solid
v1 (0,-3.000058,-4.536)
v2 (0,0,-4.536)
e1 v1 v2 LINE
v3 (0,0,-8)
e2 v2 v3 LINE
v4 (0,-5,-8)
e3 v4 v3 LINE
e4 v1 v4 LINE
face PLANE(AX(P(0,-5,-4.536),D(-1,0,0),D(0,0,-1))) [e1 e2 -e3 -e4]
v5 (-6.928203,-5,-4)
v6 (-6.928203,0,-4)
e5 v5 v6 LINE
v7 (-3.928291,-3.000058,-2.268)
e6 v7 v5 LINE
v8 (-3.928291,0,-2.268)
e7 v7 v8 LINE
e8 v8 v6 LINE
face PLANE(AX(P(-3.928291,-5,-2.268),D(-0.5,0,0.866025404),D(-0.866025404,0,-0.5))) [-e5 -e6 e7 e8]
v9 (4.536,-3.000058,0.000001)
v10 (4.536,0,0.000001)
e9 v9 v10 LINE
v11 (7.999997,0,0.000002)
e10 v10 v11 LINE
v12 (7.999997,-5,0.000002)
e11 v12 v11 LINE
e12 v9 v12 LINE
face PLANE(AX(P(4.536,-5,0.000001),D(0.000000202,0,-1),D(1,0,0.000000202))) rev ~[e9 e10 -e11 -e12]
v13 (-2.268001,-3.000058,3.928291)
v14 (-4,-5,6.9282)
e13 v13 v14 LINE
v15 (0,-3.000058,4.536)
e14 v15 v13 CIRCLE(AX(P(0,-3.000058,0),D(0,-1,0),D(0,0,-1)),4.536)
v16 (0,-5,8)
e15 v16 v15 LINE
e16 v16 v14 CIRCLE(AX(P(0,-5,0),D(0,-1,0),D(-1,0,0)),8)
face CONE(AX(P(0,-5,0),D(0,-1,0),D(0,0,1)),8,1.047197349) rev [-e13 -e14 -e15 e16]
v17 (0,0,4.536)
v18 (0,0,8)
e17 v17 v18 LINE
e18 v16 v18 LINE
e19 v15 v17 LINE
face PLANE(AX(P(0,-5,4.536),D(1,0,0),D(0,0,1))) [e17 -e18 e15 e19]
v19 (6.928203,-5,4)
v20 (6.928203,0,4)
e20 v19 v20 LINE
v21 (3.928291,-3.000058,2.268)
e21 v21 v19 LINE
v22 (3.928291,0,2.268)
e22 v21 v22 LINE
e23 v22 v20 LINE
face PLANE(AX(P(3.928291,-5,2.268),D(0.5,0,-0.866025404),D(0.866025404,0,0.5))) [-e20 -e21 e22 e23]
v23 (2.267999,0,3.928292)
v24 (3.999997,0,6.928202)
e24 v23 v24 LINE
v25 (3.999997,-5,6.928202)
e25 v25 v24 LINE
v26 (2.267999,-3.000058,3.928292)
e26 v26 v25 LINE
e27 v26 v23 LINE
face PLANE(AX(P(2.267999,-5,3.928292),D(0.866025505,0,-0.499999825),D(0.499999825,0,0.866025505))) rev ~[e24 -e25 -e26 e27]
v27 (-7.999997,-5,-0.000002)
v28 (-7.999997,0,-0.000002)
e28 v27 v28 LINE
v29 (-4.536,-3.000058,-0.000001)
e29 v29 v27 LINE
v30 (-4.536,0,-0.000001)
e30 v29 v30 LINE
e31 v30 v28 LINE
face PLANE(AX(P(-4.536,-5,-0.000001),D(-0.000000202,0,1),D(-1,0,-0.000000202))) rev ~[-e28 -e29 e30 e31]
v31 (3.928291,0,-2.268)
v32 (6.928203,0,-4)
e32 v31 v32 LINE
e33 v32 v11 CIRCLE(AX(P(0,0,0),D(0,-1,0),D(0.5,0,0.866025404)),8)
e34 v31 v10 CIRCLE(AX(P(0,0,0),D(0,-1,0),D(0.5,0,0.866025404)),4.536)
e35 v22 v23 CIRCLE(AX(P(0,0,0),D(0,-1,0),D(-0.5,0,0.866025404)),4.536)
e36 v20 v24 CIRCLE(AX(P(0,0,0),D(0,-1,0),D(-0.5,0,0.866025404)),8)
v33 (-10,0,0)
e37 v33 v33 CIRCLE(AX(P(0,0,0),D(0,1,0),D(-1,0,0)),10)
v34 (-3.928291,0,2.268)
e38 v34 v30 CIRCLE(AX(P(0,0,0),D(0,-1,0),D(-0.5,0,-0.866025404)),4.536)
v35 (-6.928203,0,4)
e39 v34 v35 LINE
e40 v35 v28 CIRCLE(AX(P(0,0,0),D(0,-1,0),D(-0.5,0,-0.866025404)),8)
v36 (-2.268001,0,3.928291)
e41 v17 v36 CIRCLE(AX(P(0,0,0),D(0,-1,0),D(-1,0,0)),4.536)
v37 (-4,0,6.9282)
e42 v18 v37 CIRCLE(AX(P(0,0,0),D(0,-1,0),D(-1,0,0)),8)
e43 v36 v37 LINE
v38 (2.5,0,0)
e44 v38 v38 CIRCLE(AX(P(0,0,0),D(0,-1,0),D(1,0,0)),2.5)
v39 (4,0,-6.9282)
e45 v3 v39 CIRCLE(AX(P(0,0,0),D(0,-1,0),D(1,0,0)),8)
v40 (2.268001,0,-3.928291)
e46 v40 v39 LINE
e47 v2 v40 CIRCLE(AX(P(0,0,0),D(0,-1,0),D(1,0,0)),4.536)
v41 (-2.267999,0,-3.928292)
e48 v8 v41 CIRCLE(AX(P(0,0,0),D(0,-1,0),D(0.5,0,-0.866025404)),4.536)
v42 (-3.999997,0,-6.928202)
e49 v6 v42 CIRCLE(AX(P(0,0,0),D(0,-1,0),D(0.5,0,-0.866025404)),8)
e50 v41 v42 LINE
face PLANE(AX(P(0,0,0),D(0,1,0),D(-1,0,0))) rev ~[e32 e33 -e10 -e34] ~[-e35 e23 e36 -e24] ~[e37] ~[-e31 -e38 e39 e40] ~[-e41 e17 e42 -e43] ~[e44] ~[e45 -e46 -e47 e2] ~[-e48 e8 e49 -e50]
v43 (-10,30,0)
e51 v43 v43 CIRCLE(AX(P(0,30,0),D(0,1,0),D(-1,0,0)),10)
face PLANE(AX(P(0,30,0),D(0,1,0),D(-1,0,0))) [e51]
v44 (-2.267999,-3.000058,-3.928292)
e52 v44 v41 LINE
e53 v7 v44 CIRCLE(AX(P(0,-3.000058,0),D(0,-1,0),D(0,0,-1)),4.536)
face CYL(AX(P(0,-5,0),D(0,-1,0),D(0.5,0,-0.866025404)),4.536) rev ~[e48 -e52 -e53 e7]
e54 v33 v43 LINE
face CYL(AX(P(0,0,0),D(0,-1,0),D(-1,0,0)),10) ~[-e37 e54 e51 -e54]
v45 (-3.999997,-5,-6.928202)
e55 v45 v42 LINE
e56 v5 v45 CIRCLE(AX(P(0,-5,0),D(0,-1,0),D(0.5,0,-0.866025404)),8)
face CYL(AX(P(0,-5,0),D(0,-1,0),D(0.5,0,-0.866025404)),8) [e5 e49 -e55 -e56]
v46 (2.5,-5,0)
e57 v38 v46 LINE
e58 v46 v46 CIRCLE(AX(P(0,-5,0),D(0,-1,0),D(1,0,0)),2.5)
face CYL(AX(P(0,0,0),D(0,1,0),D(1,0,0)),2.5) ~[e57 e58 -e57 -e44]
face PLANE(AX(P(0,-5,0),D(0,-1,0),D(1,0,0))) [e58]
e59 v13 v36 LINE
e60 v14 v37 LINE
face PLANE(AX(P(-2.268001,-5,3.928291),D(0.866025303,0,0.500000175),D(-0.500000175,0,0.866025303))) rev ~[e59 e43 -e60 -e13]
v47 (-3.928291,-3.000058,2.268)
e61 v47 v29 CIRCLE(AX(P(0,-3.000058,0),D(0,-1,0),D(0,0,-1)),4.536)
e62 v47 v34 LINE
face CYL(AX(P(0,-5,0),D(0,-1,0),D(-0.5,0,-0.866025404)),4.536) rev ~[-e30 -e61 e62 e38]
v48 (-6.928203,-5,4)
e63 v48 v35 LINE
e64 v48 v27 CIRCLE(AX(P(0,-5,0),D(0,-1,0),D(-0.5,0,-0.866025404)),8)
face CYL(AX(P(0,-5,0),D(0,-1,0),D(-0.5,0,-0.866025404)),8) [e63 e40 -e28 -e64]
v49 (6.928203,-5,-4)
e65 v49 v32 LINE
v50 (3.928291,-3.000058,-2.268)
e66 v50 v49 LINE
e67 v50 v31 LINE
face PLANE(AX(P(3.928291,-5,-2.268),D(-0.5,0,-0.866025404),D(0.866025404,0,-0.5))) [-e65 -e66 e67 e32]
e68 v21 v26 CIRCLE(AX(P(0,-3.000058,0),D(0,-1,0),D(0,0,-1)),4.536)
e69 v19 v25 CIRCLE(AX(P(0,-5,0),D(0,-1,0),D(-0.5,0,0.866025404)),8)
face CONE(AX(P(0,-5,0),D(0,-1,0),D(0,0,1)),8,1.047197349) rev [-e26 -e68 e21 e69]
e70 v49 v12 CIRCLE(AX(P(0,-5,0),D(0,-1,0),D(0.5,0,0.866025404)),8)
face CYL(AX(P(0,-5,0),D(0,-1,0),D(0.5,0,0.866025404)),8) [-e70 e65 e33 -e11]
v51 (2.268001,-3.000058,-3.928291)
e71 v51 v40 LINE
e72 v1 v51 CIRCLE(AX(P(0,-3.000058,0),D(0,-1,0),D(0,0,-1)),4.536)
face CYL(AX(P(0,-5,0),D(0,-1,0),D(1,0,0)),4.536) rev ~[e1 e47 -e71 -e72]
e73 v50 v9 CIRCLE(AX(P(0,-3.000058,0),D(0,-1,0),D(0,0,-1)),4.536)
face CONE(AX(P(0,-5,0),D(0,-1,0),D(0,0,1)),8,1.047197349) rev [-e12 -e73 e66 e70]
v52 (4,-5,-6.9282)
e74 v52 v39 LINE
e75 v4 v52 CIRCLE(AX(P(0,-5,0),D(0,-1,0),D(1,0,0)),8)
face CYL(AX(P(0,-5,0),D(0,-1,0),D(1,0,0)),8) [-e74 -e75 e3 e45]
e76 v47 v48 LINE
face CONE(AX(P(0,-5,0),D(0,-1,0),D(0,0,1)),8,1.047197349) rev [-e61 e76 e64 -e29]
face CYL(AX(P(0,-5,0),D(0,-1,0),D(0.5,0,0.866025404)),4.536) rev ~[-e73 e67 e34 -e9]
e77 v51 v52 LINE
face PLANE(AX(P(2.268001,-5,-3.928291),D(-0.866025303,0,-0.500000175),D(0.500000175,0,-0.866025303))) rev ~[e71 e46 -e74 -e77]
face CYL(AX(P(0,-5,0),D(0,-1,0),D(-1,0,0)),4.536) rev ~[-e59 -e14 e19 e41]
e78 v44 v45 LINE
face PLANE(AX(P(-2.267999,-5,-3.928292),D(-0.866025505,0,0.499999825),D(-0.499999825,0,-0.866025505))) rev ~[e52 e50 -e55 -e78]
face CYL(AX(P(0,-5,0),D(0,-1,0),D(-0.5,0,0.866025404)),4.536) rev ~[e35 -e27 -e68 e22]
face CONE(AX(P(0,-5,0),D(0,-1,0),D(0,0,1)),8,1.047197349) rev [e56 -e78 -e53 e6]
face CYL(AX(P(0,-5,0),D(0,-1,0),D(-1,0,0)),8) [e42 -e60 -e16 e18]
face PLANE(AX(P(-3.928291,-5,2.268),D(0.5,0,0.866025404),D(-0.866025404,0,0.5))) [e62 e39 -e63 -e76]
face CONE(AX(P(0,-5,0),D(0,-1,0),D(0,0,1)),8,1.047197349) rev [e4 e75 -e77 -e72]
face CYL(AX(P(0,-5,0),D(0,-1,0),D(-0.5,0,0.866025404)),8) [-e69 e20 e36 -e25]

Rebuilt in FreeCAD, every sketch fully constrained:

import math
import FreeCAD as App
import Part
import Sketcher

V = App.Vector
Q = App.Units.Quantity


def add_polygon(sketch, points):
    """Adds a closed chain of lines whose ends are joined by coincident constraints."""
    first, n = sketch.GeometryCount, len(points)
    for a, b in zip(points, points[1:] + points[:1]):
        sketch.addGeometry(Part.LineSegment(App.Vector(*a, 0), App.Vector(*b, 0)), False)
    for i in range(n):
        sketch.addConstraint(Sketcher.Constraint("Coincident", first + i, 2, first + (i + 1) % n, 1))

doc = App.newDocument("Part")
params = doc.addObject("Spreadsheet::Sheet", "Params")
for row, (alias, value) in enumerate([
    ("sketch1_diameter", "20 mm"),
    ("pad1_length", "30 mm"),
    ("sketch2_diameter", "5 mm"),
    ("pad2_length", "5 mm"),
    ("sketch3_radius", "8 mm"),
    ("pad3_length", "5 mm"),
    ("sketch4_length", "4 mm"),
    ("sketch4_width", "2 mm"),
    ("groove_angle", "360 deg"),
], start=1):
    params.set(f"A{row}", alias)
    params.set(f"B{row}", "=" + value)
    params.setAlias(f"B{row}", alias)

body = doc.addObject("PartDesign::Body", "Body")

# Sketch on XZ plane
sketch1 = body.newObject("Sketcher::SketchObject", "Sketch")
sketch1.AttachmentSupport = (doc.getObject("XZ_Plane"), [""])
sketch1.MapMode = "FlatFace"
sketch1.addGeometry(Part.Circle(V(0, 0, 0), V(0, 0, 1), 10), False)
sketch1.addConstraint([
    Sketcher.Constraint("Coincident", 0, 3, -1, 1),
    Sketcher.Constraint("Diameter", 0, 20.0),
])
sketch1.setExpression("Constraints[1]", "Params.sketch1_diameter")
pad1 = body.newObject("PartDesign::Pad", "Pad")
pad1.Profile = sketch1
pad1.setExpression("Length", "Params.pad1_length")
pad1.Reversed = True

# Sketch on XZ plane
sketch2 = body.newObject("Sketcher::SketchObject", "Sketch001")
sketch2.AttachmentSupport = (doc.getObject("XZ_Plane"), [""])
sketch2.MapMode = "FlatFace"
sketch2.addGeometry(Part.Circle(V(0, 0, 0), V(0, 0, 1), 2.5), False)
sketch2.addConstraint([
    Sketcher.Constraint("Coincident", 0, 3, -1, 1),
    Sketcher.Constraint("Diameter", 0, 5.0),
])
sketch2.setExpression("Constraints[1]", "Params.sketch2_diameter")
pad2 = body.newObject("PartDesign::Pad", "Pad001")
pad2.Profile = sketch2
pad2.setExpression("Length", "Params.pad2_length")

# Sketch on XZ plane
sketch3 = body.newObject("Sketcher::SketchObject", "Sketch002")
sketch3.AttachmentSupport = (doc.getObject("XZ_Plane"), [""])
sketch3.MapMode = "FlatFace"
sketch3.AttachmentOffset = App.Placement(V(0, 0, 5), App.Rotation())
sketch3.addGeometry([
    Part.LineSegment(V(4, -6.9282, 0), V(2.268001, -3.928291, 0)),
    Part.ArcOfCircle(Part.Circle(V(0, 0, 0), V(0, 0, 1), 4.536), math.radians(-90), math.radians(-59.999988)),
    Part.LineSegment(V(0, -4.536, 0), V(0, -8, 0)),
    Part.ArcOfCircle(Part.Circle(V(0, 0, 0), V(0, 0, 1), 8), math.radians(-90), math.radians(-59.999988)),
], False)
sketch3.addConstraint([
    Sketcher.Constraint("Coincident", 0, 2, 1, 2),
    Sketcher.Constraint("Coincident", 1, 1, 2, 1),
    Sketcher.Constraint("Coincident", 2, 2, 3, 1),
    Sketcher.Constraint("Coincident", 3, 2, 0, 1),
    Sketcher.Constraint("Vertical", 2),
    Sketcher.Constraint("Coincident", 1, 3, -1, 1),
    Sketcher.Constraint("Coincident", 3, 3, -1, 1),
    Sketcher.Constraint("PointOnObject", 1, 1, -2),
    Sketcher.Constraint("Radius", 3, 8.0),
    Sketcher.Constraint("Radius", 1, 4.536),
    Sketcher.Constraint("Angle", 0, Q("120 deg")),
    Sketcher.Constraint("DistanceX", -1, 1, 3, 2, 4.0),
])
sketch3.setExpression("Constraints[8]", "Params.sketch3_radius")
pad3 = body.newObject("PartDesign::Pad", "Pad002")
pad3.Profile = sketch3
pad3.setExpression("Length", "Params.pad3_length")
pad3.Reversed = True
doc.recompute()

polarpattern = body.newObject("PartDesign::PolarPattern", "PolarPattern")
polarpattern.Originals = [pad3]
polarpattern.Axis = (doc.getObject("Y_Axis"), [""])
polarpattern.Angle = 360
polarpattern.Occurrences = 6
body.Tip = polarpattern

# Sketch on YZ plane
sketch4 = body.newObject("Sketcher::SketchObject", "Sketch003")
sketch4.AttachmentSupport = (doc.getObject("YZ_Plane"), [""])
sketch4.MapMode = "FlatFace"
add_polygon(sketch4, [(-3, 4.5359), (-5, 8), (-5, 4.5359)])  # lines 0-2
sketch4.addConstraint([
    Sketcher.Constraint("Vertical", 1),
    Sketcher.Constraint("Horizontal", 2),
    Sketcher.Constraint("Distance", 0, 4.0),
    Sketcher.Constraint("DistanceX", 2, 1, 2, 2, 2.0),
    Sketcher.Constraint("DistanceX", 0, 2, -1, 1, 5.0),
    Sketcher.Constraint("DistanceY", -1, 1, 0, 2, 8.0),
])
sketch4.setExpression("Constraints[5]", "Params.sketch4_length")
sketch4.setExpression("Constraints[6]", "Params.sketch4_width")
groove = body.newObject("PartDesign::Groove", "Groove")
groove.Profile = sketch4
groove.ReferenceAxis = (sketch4, ["H_Axis"])
groove.setExpression("Angle", "Params.groove_angle")

doc.recompute()
